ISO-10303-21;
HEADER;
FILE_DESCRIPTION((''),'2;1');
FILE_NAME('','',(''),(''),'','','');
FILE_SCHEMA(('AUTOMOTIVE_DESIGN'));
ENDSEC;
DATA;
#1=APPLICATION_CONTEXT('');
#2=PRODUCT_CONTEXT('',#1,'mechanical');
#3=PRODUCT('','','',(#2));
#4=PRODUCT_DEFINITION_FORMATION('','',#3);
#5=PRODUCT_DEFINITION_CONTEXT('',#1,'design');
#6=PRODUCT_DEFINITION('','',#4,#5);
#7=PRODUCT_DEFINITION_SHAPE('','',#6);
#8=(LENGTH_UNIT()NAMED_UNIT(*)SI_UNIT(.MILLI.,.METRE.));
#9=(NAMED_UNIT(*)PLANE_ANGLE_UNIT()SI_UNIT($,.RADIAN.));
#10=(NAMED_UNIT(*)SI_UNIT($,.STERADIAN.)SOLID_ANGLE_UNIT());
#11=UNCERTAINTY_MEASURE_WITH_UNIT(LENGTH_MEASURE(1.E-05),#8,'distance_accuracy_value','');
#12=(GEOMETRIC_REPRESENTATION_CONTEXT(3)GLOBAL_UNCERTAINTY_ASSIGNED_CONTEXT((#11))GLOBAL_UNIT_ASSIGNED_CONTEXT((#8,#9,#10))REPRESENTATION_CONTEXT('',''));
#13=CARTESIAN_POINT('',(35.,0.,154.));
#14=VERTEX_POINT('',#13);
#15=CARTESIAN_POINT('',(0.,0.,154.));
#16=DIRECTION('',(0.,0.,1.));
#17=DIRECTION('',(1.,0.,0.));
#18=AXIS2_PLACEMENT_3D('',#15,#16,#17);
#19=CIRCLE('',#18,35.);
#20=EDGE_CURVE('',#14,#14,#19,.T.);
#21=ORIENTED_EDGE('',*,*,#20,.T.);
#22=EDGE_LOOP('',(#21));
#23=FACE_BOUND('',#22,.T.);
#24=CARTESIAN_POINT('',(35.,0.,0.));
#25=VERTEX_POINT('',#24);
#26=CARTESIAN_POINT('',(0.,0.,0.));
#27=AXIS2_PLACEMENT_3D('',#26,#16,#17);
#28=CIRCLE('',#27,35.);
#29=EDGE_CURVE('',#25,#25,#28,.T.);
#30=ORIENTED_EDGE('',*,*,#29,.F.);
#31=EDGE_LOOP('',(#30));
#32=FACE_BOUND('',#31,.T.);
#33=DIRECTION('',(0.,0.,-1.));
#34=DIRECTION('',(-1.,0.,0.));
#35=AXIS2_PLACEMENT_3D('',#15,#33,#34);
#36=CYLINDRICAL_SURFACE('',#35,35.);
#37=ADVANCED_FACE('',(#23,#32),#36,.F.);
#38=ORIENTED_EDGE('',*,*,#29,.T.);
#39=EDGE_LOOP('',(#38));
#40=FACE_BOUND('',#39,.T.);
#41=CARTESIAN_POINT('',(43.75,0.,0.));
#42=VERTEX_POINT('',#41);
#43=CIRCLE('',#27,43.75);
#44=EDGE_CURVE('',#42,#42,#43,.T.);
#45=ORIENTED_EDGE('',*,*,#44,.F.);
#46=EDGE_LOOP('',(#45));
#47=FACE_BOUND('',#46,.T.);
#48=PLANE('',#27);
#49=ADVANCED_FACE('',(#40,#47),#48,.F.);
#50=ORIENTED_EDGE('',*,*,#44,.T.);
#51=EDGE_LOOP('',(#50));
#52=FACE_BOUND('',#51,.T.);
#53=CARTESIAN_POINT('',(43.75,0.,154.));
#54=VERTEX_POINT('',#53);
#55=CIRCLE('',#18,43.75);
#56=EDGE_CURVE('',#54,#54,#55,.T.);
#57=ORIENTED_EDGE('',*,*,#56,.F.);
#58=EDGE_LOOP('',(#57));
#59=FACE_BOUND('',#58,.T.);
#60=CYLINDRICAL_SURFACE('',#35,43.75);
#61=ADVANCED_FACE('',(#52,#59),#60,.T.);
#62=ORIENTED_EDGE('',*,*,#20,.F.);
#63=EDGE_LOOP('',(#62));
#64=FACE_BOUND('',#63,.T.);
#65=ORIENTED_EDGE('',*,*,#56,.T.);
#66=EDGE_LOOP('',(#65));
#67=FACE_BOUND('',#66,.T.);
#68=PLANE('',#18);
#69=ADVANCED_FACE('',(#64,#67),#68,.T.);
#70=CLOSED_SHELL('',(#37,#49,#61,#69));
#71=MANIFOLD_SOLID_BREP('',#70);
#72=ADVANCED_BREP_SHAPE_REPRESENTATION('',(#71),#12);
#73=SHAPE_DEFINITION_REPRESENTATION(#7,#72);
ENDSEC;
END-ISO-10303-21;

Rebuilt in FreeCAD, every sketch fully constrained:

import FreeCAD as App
import Part
import Sketcher
Q = App.Units.Quantity

doc = App.newDocument("Part")
body = doc.addObject("PartDesign::Body", "Body")

# Sketch on XY plane
sketch1 = doc.addObject("Sketcher::SketchObject", "Sketch")
body.addObject(sketch1)
sketch1.AttachmentSupport = (doc.XY_Plane, [""])
sketch1.MapMode = "FlatFace"
sketch1.addGeometry([
    Part.Circle(App.Vector(0, 0, 0), App.Vector(0, 0, 1), 43.75),
    Part.Circle(App.Vector(0, 0, 0), App.Vector(0, 0, 1), 35),
], False)
sketch1.addConstraint([
    Sketcher.Constraint("Coincident", 0, 3, -1, 1),
    Sketcher.Constraint("Coincident", 1, 3, -1, 1),
    Sketcher.Constraint("Diameter", 1, Q("70 mm")),
    Sketcher.Constraint("Diameter", 0, Q("87.5 mm")),
])
pad1 = doc.addObject("PartDesign::Pad", "Pad")
body.addObject(pad1)
pad1.Profile = sketch1
pad1.Length = 154

doc.recompute()
